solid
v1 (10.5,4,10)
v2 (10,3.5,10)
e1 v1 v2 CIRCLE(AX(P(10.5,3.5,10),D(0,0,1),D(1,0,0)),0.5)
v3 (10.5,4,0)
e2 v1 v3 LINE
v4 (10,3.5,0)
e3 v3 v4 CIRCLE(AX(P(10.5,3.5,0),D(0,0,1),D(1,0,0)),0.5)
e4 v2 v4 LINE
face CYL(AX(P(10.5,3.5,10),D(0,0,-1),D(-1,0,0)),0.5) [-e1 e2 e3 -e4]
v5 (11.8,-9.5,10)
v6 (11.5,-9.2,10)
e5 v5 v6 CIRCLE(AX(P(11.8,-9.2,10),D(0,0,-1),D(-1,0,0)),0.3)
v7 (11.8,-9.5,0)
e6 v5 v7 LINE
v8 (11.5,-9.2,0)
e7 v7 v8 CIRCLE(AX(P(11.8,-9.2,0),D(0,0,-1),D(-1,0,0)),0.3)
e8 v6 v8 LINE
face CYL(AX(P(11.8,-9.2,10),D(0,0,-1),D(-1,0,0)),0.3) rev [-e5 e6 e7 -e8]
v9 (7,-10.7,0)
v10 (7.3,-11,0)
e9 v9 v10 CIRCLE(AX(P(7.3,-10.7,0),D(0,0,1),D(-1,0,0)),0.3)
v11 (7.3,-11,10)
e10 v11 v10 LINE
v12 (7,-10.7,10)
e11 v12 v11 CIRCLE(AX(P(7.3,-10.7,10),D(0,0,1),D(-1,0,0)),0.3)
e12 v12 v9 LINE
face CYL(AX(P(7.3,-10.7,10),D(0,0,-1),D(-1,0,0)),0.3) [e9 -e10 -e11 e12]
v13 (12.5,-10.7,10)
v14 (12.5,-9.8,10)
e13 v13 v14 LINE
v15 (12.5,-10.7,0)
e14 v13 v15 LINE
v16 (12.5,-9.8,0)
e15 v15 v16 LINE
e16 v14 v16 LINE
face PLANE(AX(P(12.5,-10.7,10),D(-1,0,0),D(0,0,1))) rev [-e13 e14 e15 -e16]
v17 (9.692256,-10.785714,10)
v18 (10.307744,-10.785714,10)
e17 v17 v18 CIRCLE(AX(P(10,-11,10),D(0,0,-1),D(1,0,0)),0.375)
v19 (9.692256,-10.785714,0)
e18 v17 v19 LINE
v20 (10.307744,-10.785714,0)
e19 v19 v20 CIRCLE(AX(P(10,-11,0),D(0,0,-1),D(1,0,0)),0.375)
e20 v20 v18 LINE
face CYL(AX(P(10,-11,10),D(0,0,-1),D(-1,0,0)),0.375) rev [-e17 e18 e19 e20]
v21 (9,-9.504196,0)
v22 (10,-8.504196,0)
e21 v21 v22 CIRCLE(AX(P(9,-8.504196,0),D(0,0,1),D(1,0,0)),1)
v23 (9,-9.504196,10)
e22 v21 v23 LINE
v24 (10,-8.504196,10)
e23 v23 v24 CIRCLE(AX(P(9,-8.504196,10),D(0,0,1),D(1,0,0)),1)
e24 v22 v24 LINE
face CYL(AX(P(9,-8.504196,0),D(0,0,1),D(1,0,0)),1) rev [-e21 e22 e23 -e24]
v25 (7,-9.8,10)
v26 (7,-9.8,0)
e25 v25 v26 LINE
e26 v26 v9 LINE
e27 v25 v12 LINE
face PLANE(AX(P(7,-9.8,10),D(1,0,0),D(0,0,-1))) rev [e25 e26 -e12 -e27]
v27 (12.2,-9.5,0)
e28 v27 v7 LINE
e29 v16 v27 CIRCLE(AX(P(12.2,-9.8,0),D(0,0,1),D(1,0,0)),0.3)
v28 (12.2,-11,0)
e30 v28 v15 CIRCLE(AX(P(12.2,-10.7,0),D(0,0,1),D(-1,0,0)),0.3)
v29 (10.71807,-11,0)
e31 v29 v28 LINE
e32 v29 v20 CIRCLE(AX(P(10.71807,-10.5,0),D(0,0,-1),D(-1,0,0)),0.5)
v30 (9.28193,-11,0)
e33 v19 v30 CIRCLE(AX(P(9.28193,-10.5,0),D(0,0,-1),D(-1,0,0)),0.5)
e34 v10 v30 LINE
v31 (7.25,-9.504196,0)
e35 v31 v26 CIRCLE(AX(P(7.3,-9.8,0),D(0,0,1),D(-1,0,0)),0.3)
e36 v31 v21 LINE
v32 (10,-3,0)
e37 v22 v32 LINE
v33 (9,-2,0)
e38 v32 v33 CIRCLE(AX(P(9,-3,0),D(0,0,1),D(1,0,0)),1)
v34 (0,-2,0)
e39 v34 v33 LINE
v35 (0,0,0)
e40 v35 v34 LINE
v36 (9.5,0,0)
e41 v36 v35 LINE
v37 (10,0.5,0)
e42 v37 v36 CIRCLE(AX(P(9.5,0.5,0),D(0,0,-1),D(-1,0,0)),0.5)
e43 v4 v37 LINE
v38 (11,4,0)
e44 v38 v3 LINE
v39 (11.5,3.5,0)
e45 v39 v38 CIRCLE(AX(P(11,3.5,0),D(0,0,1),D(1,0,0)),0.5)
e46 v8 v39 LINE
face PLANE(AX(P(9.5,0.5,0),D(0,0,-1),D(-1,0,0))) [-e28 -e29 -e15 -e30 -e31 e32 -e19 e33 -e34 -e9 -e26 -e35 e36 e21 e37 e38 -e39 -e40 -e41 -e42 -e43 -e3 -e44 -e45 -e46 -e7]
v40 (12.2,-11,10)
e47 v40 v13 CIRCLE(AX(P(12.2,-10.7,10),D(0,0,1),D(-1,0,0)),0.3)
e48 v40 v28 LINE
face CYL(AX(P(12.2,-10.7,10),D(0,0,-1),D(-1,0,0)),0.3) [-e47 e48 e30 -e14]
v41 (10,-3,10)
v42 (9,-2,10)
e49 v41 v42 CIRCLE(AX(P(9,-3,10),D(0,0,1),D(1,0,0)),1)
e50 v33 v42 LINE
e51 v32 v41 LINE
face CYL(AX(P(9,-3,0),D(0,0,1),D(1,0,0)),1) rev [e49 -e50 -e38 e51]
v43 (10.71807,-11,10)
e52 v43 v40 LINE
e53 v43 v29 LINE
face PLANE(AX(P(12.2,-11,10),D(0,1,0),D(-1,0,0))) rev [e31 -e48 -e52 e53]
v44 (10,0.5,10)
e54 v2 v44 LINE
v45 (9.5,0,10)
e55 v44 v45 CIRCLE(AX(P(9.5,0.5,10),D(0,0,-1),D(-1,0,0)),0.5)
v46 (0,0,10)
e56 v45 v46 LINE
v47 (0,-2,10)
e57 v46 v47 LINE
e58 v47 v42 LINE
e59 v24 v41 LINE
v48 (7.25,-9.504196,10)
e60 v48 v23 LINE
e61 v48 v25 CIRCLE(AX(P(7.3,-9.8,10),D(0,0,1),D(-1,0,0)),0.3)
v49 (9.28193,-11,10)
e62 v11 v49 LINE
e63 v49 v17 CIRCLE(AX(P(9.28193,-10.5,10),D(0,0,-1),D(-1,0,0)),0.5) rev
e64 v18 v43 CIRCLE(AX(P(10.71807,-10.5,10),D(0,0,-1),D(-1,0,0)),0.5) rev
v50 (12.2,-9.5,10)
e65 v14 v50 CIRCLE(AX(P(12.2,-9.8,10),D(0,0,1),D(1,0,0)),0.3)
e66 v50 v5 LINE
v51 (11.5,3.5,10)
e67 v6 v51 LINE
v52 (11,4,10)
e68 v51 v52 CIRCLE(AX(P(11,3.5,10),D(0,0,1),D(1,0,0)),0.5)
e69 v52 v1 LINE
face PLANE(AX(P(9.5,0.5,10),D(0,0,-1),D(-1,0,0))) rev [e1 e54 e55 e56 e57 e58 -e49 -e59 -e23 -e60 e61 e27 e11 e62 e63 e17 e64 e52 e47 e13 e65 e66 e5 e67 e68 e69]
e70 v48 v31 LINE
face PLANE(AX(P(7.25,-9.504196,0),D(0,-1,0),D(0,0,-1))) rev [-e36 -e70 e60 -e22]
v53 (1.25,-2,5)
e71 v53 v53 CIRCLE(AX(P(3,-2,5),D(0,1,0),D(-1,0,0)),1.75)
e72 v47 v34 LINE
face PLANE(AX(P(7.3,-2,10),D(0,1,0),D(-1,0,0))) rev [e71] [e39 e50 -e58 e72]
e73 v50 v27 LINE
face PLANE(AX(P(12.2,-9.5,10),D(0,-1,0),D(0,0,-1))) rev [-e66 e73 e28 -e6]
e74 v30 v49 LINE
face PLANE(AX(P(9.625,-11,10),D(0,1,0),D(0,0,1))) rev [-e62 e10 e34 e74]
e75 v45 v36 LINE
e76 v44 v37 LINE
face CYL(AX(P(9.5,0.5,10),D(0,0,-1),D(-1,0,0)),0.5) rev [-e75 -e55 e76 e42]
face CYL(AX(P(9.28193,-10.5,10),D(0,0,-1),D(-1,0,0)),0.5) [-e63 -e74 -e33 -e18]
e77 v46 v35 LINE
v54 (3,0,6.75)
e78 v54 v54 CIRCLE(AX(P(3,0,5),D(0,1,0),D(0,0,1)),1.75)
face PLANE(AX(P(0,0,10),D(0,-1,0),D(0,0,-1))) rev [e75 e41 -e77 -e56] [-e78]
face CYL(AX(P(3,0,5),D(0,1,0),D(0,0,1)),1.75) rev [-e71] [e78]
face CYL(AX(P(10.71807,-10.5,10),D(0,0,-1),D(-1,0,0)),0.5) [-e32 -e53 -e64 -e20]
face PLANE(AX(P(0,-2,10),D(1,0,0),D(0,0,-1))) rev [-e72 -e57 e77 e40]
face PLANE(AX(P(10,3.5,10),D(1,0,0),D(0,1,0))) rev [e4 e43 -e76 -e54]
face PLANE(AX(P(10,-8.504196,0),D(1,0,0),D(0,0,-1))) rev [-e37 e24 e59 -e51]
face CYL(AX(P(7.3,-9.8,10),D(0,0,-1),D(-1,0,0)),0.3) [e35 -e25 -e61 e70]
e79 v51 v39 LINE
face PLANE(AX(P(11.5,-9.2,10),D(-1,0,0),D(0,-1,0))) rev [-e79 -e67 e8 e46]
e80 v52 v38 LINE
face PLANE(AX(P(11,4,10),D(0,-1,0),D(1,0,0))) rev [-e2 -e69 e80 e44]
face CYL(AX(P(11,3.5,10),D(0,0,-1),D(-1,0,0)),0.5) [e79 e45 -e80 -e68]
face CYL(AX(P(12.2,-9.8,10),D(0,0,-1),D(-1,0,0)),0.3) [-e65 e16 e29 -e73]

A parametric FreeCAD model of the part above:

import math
import FreeCAD as App
import Part
import Sketcher

V = App.Vector


def edges_at(feature, points):
    """Names of the edges that pass closest to the given points."""
    edges = feature.Shape.Edges
    near = lambda p: min(range(len(edges)), key=lambda i: edges[i].distToShape(Part.Vertex(*p))[0])
    return sorted({f"Edge{near(p) + 1}" for p in points})

doc = App.newDocument("Part")
body = doc.addObject("PartDesign::Body", "Body")

# Sketch on XY plane
sketch1 = doc.addObject("Sketcher::SketchObject", "Sketch")
body.addObject(sketch1)
sketch1.AttachmentSupport = (doc.XY_Plane, [""])
sketch1.MapMode = "FlatFace"
sketch1.addGeometry(Part.LineSegment(V(9.5, 0, 0), V(0, 0, 0)), False)
sketch1.addGeometry(Part.LineSegment(V(0, 0, 0), V(0, -2, 0)), False)
sketch1.addGeometry(Part.LineSegment(V(0, -2, 0), V(7.3, -2, 0)), False)
sketch1.addGeometry(Part.ArcOfCircle(Part.Circle(V(7.3, -2.2, 0), V(0, 0, 1), 0.2), math.radians(0), math.radians(90)), False)
sketch1.addGeometry(Part.LineSegment(V(7.5, -2.2, 0), V(7.5, -9.21, 0)), False)
sketch1.addGeometry(Part.ArcOfCircle(Part.Circle(V(7.2, -9.21, 0), V(0, 0, 1), 0.3), math.radians(-80), math.radians(0)), False)
sketch1.addGeometry(Part.ArcOfCircle(Part.Circle(V(7.3, -9.8, 0), V(0, 0, 1), 0.3), math.radians(100), math.radians(180)), False)
sketch1.addGeometry(Part.LineSegment(V(7, -9.8, 0), V(7, -10.7, 0)), False)
sketch1.addGeometry(Part.ArcOfCircle(Part.Circle(V(7.3, -10.7, 0), V(0, 0, 1), 0.3), math.radians(-180), math.radians(-90)), False)
sketch1.addGeometry(Part.LineSegment(V(7.3, -11, 0), V(9.62, -11, 0)), False)
sketch1.addGeometry(Part.ArcOfCircle(Part.Circle(V(10, -11, 0), V(0, 0, 1), 0.38), math.radians(0), math.radians(180)), False)
sketch1.addGeometry(Part.LineSegment(V(10.38, -11, 0), V(12.2, -11, 0)), False)
sketch1.addGeometry(Part.ArcOfCircle(Part.Circle(V(12.2, -10.7, 0), V(0, 0, 1), 0.3), math.radians(-90), math.radians(0)), False)
sketch1.addGeometry(Part.LineSegment(V(12.5, -10.7, 0), V(12.5, -9.8, 0)), False)
sketch1.addGeometry(Part.ArcOfCircle(Part.Circle(V(12.2, -9.8, 0), V(0, 0, 1), 0.3), math.radians(0), math.radians(90)), False)
sketch1.addGeometry(Part.LineSegment(V(12.2, -9.5, 0), V(11.8, -9.5, 0)), False)
sketch1.addGeometry(Part.ArcOfCircle(Part.Circle(V(11.8, -9.2, 0), V(0, 0, 1), 0.3), math.radians(-180), math.radians(-90)), False)
sketch1.addGeometry(Part.LineSegment(V(11.5, -9.2, 0), V(11.5, 3.5, 0)), False)
sketch1.addGeometry(Part.ArcOfCircle(Part.Circle(V(11, 3.5, 0), V(0, 0, 1), 0.5), math.radians(0), math.radians(90)), False)
sketch1.addGeometry(Part.LineSegment(V(11, 4, 0), V(10.5, 4, 0)), False)
sketch1.addGeometry(Part.ArcOfCircle(Part.Circle(V(10.5, 3.5, 0), V(0, 0, 1), 0.5), math.radians(90), math.radians(180)), False)
sketch1.addGeometry(Part.LineSegment(V(10, 3.5, 0), V(10, 0.5, 0)), False)
sketch1.addGeometry(Part.ArcOfCircle(Part.Circle(V(9.5, 0.5, 0), V(0, 0, 1), 0.5), math.radians(-90), math.radians(0)), False)
sketch1.addConstraint(Sketcher.Constraint("Coincident", 0, 2, 1, 1))
sketch1.addConstraint(Sketcher.Constraint("Coincident", 1, 2, 2, 1))
sketch1.addConstraint(Sketcher.Constraint("Tangent", 2, 2, 3, 2))
sketch1.addConstraint(Sketcher.Constraint("Tangent", 3, 1, 4, 1))
sketch1.addConstraint(Sketcher.Constraint("Tangent", 4, 2, 5, 2))
sketch1.addConstraint(Sketcher.Constraint("Tangent", 5, 1, 6, 1))
sketch1.addConstraint(Sketcher.Constraint("Tangent", 6, 2, 7, 1))
sketch1.addConstraint(Sketcher.Constraint("Tangent", 7, 2, 8, 1))
sketch1.addConstraint(Sketcher.Constraint("Tangent", 8, 2, 9, 1))
sketch1.addConstraint(Sketcher.Constraint("Coincident", 9, 2, 10, 2))
sketch1.addConstraint(Sketcher.Constraint("Coincident", 10, 1, 11, 1))
sketch1.addConstraint(Sketcher.Constraint("Tangent", 11, 2, 12, 1))
sketch1.addConstraint(Sketcher.Constraint("Tangent", 12, 2, 13, 1))
sketch1.addConstraint(Sketcher.Constraint("Tangent", 13, 2, 14, 1))
sketch1.addConstraint(Sketcher.Constraint("Tangent", 14, 2, 15, 1))
sketch1.addConstraint(Sketcher.Constraint("Tangent", 15, 2, 16, 2))
sketch1.addConstraint(Sketcher.Constraint("Tangent", 16, 1, 17, 1))
sketch1.addConstraint(Sketcher.Constraint("Tangent", 17, 2, 18, 1))
sketch1.addConstraint(Sketcher.Constraint("Tangent", 18, 2, 19, 1))
sketch1.addConstraint(Sketcher.Constraint("Tangent", 19, 2, 20, 1))
sketch1.addConstraint(Sketcher.Constraint("Tangent", 20, 2, 21, 1))
sketch1.addConstraint(Sketcher.Constraint("Tangent", 21, 2, 22, 2))
sketch1.addConstraint(Sketcher.Constraint("Tangent", 22, 1, 0, 1))
sketch1.addConstraint(Sketcher.Constraint("Horizontal", 0))
sketch1.addConstraint(Sketcher.Constraint("Vertical", 1))
sketch1.addConstraint(Sketcher.Constraint("Horizontal", 2))
sketch1.addConstraint(Sketcher.Constraint("Vertical", 4))
sketch1.addConstraint(Sketcher.Constraint("Vertical", 7))
sketch1.addConstraint(Sketcher.Constraint("Horizontal", 9))
sketch1.addConstraint(Sketcher.Constraint("Horizontal", 11))
sketch1.addConstraint(Sketcher.Constraint("Vertical", 13))
sketch1.addConstraint(Sketcher.Constraint("Horizontal", 15))
sketch1.addConstraint(Sketcher.Constraint("Vertical", 17))
sketch1.addConstraint(Sketcher.Constraint("Horizontal", 19))
sketch1.addConstraint(Sketcher.Constraint("Vertical", 21))
sketch1.addConstraint(Sketcher.Constraint("Coincident", 0, 2, -1, 1))
sketch1.addConstraint(Sketcher.Constraint("Equal", 5, 6))
sketch1.addConstraint(Sketcher.Constraint("Equal", 6, 8))
sketch1.addConstraint(Sketcher.Constraint("Equal", 8, 12))
sketch1.addConstraint(Sketcher.Constraint("Equal", 12, 14))
sketch1.addConstraint(Sketcher.Constraint("Equal", 14, 16))
sketch1.addConstraint(Sketcher.Constraint("Equal", 18, 20))
sketch1.addConstraint(Sketcher.Constraint("Equal", 20, 22))
sketch1.addConstraint(Sketcher.Constraint("Horizontal", 8, 3, 12, 3))
sketch1.addConstraint(Sketcher.Constraint("Horizontal", 6, 3, 14, 3))
sketch1.addConstraint(Sketcher.Constraint("Horizontal", 10, 3, 8, 2))
sketch1.addConstraint(Sketcher.Constraint("Vertical", 3, 3, 6, 3))
sketch1.addConstraint(Sketcher.Constraint("Vertical", 10, 3, 20, 2))
sketch1.addConstraint(Sketcher.Constraint("Radius", 3, 0.2))
sketch1.addConstraint(Sketcher.Constraint("Radius", 5, 0.3))
sketch1.addConstraint(Sketcher.Constraint("Radius", 18, 0.5))
sketch1.addConstraint(Sketcher.Constraint("DistanceY", 1, 2, 1, 1, 2.0))
sketch1.addConstraint(Sketcher.Constraint("DistanceY", 21, 2, 21, 1, 3.0))
sketch1.addConstraint(Sketcher.Constraint("DistanceX", 0, 2, 0, 1, 9.5))
sketch1.addConstraint(Sketcher.Constraint("DistanceX", 2, 1, 2, 2, 7.3))
sketch1.addConstraint(Sketcher.Constraint("DistanceX", 15, 2, 15, 1, 0.4))
sketch1.addConstraint(Sketcher.Constraint("DistanceX", 19, 2, 19, 1, 0.5))
sketch1.addConstraint(Sketcher.Constraint("DistanceY", 7, 2, 7, 1, 0.9))
sketch1.addConstraint(Sketcher.Constraint("DistanceY", 17, 1, 17, 2, 12.7))
sketch1.addConstraint(Sketcher.Constraint("Radius", 10, 0.375))
pad1 = doc.addObject("PartDesign::Pad", "Pad")
body.addObject(pad1)
pad1.Profile = sketch1
pad1.Length = 10
doc.recompute()

fillet = doc.addObject("PartDesign::Fillet", "Fillet")
body.addObject(fillet)
fillet.Base = (pad1, edges_at(pad1, [(10.375, -11, 5), (9.625, -11, 5)]))
fillet.Radius = 0.5

# Sketch on XZ plane
sketch2 = doc.addObject("Sketcher::SketchObject", "Sketch001")
body.addObject(sketch2)
sketch2.AttachmentSupport = (doc.XZ_Plane, [""])
sketch2.MapMode = "FlatFace"
sketch2.addGeometry(Part.Circle(V(3, 5, 0), V(0, 0, 1), 1.8), False)
sketch2.addConstraint(Sketcher.Constraint("Diameter", 0, 3.5))
sketch2.addConstraint(Sketcher.Constraint("DistanceX", -1, 1, 0, 3, 3.0))
sketch2.addConstraint(Sketcher.Constraint("DistanceY", -1, 1, 0, 3, 5.0))
doc.recompute()
hole = doc.addObject("PartDesign::Hole", "Hole")
body.addObject(hole)
hole.Profile = sketch2
hole.ThreadType = "None"
hole.Diameter = 3.5
hole.DepthType = "ThroughAll"
hole.Reversed = True

# Sketch on XY plane
sketch3 = doc.addObject("Sketcher::SketchObject", "Sketch002")
body.addObject(sketch3)
sketch3.AttachmentSupport = (doc.XY_Plane, [""])
sketch3.MapMode = "FlatFace"
sketch3.AttachmentOffset = App.Placement(V(0, 0, 10), App.Rotation())
sketch3.addGeometry(Part.LineSegment(V(7.2, -9.5, 0), V(9, -9.5, 0)), False)
sketch3.addGeometry(Part.ArcOfCircle(Part.Circle(V(9, -8.5, 0), V(0, 0, 1), 1), math.radians(-90), math.radians(0)), False)
sketch3.addGeometry(Part.LineSegment(V(10, -8.5, 0), V(10, -3, 0)), False)
sketch3.addGeometry(Part.ArcOfCircle(Part.Circle(V(9, -3, 0), V(0, 0, 1), 1), math.radians(0), math.radians(90)), False)
sketch3.addGeometry(Part.LineSegment(V(9, -2, 0), V(7.2, -2, 0)), False)
sketch3.addGeometry(Part.LineSegment(V(7.2, -2, 0), V(7.2, -9.5, 0)), False)
sketch3.addConstraint(Sketcher.Constraint("Tangent", 0, 2, 1, 1))
sketch3.addConstraint(Sketcher.Constraint("Tangent", 1, 2, 2, 1))
sketch3.addConstraint(Sketcher.Constraint("Tangent", 2, 2, 3, 1))
sketch3.addConstraint(Sketcher.Constraint("Tangent", 3, 2, 4, 1))
sketch3.addConstraint(Sketcher.Constraint("Coincident", 4, 2, 5, 1))
sketch3.addConstraint(Sketcher.Constraint("Coincident", 5, 2, 0, 1))
sketch3.addConstraint(Sketcher.Constraint("Horizontal", 0))
sketch3.addConstraint(Sketcher.Constraint("Vertical", 2))
sketch3.addConstraint(Sketcher.Constraint("Horizontal", 4))
sketch3.addConstraint(Sketcher.Constraint("Vertical", 5))
sketch3.addConstraint(Sketcher.Constraint("Equal", 1, 3))
sketch3.addConstraint(Sketcher.Constraint("Radius", 1, 1.0))
sketch3.addConstraint(Sketcher.Constraint("DistanceX", -1, 1, 1, 3, 9.0))
sketch3.addConstraint(Sketcher.Constraint("DistanceY", 3, 3, -1, 1, 3.0))
sketch3.addConstraint(Sketcher.Constraint("DistanceX", 0, 1, 0, 2, 1.75))
sketch3.addConstraint(Sketcher.Constraint("DistanceY", 2, 1, 2, 2, 5.504196))
pocket1 = doc.addObject("PartDesign::Pocket", "Pocket")
body.addObject(pocket1)
pocket1.Profile = sketch3
pocket1.Length = 10

doc.recompute()
